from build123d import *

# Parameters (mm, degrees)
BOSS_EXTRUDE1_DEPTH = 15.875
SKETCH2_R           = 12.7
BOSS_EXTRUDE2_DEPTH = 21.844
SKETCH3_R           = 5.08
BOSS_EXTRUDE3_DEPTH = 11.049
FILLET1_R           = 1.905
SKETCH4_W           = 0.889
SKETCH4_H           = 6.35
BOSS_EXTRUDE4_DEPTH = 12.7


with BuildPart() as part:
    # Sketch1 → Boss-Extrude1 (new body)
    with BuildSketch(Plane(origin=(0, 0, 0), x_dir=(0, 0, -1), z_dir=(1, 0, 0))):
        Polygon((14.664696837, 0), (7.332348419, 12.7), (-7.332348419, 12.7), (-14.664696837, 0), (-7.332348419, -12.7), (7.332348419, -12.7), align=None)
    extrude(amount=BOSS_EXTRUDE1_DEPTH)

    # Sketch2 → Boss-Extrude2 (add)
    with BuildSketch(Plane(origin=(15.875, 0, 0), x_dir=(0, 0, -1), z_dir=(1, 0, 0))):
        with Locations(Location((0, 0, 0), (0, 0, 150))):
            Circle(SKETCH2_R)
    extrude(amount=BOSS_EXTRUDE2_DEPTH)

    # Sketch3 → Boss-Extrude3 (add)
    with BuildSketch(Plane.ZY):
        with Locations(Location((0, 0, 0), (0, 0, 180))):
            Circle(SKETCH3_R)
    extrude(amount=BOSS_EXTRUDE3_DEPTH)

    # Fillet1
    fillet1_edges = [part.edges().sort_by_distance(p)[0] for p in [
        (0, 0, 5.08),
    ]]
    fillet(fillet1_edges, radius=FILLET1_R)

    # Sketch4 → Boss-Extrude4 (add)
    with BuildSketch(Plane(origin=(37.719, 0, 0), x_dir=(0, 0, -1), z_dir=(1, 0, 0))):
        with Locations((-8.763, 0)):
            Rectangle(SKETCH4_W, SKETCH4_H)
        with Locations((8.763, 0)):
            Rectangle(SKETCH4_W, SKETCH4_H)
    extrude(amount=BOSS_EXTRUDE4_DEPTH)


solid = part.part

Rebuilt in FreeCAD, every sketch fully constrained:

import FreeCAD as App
import Part
import Sketcher

V = App.Vector
Q = App.Units.Quantity


def edges_at(feature, points):
    """Names of the edges that pass closest to the given points."""
    edges = feature.Shape.Edges
    near = lambda p: min(range(len(edges)), key=lambda i: edges[i].distToShape(Part.Vertex(*p))[0])
    return sorted({f"Edge{near(p) + 1}" for p in points})


def add_polygon(sketch, points):
    """Adds a closed chain of lines whose ends are joined by coincident constraints."""
    first, n = sketch.GeometryCount, len(points)
    for a, b in zip(points, points[1:] + points[:1]):
        sketch.addGeometry(Part.LineSegment(App.Vector(*a, 0), App.Vector(*b, 0)), False)
    for i in range(n):
        sketch.addConstraint(Sketcher.Constraint("Coincident", first + i, 2, first + (i + 1) % n, 1))

doc = App.newDocument("Part")
body = doc.addObject("PartDesign::Body", "Body")

sketch1 = doc.addObject("Sketcher::SketchObject", "Sketch")
body.addObject(sketch1)
sketch1.AttachmentSupport = (doc.YZ_Plane, [""])
sketch1.MapMode = "FlatFace"
add_polygon(sketch1, [(0, -14.664697), (12.7, -7.332348), (12.7, 7.332348), (0, 14.664697), (-12.7, 7.332348), (-12.7, -7.332348)])
sketch1.addConstraint(Sketcher.Constraint("Vertical", 1))
sketch1.addConstraint(Sketcher.Constraint("Vertical", 4))
sketch1.addConstraint(Sketcher.Constraint("Symmetric", 0, 2, 3, 2, -1, 1))
sketch1.addConstraint(Sketcher.Constraint("Symmetric", 2, 2, 5, 2, -1, 1))
sketch1.addConstraint(Sketcher.Constraint("PointOnObject", 2, 2, -2))
sketch1.addConstraint(Sketcher.Constraint("Parallel", 2, 5))
sketch1.addConstraint(Sketcher.Constraint("Horizontal", 1, 2, 3, 2))
sketch1.addConstraint(Sketcher.Constraint("Angle", 0, Q("30 deg")))
sketch1.addConstraint(Sketcher.Constraint("DistanceX", 3, 2, 1, 2, Q("1 in")))
sketch1.addConstraint(Sketcher.Constraint("DistanceY", 1, 1, 1, 2, 14.664697))
pad1 = doc.addObject("PartDesign::Pad", "Pad")
body.addObject(pad1)
pad1.Profile = sketch1
pad1.Length = Q("0.625 in")

sketch2 = doc.addObject("Sketcher::SketchObject", "Sketch001")
body.addObject(sketch2)
sketch2.AttachmentSupport = (doc.YZ_Plane, [""])
sketch2.MapMode = "FlatFace"
sketch2.AttachmentOffset = App.Placement(V(0, 0, 0.625 * 25.4), App.Rotation())
sketch2.addGeometry(Part.Circle(V(0, 0, 0), V(0, 0, 1), 12.7), False)
sketch2.addConstraint(Sketcher.Constraint("Coincident", 0, 3, -1, 1))
sketch2.addConstraint(Sketcher.Constraint("Diameter", 0, Q("1 in")))
pad2 = doc.addObject("PartDesign::Pad", "Pad001")
body.addObject(pad2)
pad2.Profile = sketch2
pad2.Length = Q("0.86 in")

sketch3 = doc.addObject("Sketcher::SketchObject", "Sketch002")
body.addObject(sketch3)
sketch3.AttachmentSupport = (doc.YZ_Plane, [""])
sketch3.MapMode = "FlatFace"
sketch3.addGeometry(Part.Circle(V(0, 0, 0), V(0, 0, 1), 5.08), False)
sketch3.addConstraint(Sketcher.Constraint("Coincident", 0, 3, -1, 1))
sketch3.addConstraint(Sketcher.Constraint("Diameter", 0, Q("0.4 in")))
pad3 = doc.addObject("PartDesign::Pad", "Pad002")
body.addObject(pad3)
pad3.Profile = sketch3
pad3.Length = Q("0.435 in")
pad3.Reversed = True
doc.recompute()

fillet = doc.addObject("PartDesign::Fillet", "Fillet")
body.addObject(fillet)
fillet.Base = (pad3, edges_at(pad3, [(0, 0, 5.08)]))
fillet.Radius = Q("0.075 in")

sketch4 = doc.addObject("Sketcher::SketchObject", "Sketch003")
body.addObject(sketch4)
sketch4.AttachmentSupport = (doc.YZ_Plane, [""])
sketch4.MapMode = "FlatFace"
sketch4.AttachmentOffset = App.Placement(V(0, 0, 1.485 * 25.4), App.Rotation())
add_polygon(sketch4, [(3.175, 9.2075), (-3.175, 9.2075), (-3.175, 8.3185), (3.175, 8.3185)])
add_polygon(sketch4, [(3.175, -8.3185), (-3.175, -8.3185), (-3.175, -9.2075), (3.175, -9.2075)])
sketch4.addConstraint(Sketcher.Constraint("Horizontal", 0))
sketch4.addConstraint(Sketcher.Constraint("Vertical", 1))
sketch4.addConstraint(Sketcher.Constraint("Horizontal", 2))
sketch4.addConstraint(Sketcher.Constraint("Vertical", 3))
sketch4.addConstraint(Sketcher.Constraint("Horizontal", 4))
sketch4.addConstraint(Sketcher.Constraint("Vertical", 5))
sketch4.addConstraint(Sketcher.Constraint("Horizontal", 6))
sketch4.addConstraint(Sketcher.Constraint("Vertical", 7))
sketch4.addConstraint(Sketcher.Constraint("Symmetric", 2, 2, 4, 2, -1, 1))
sketch4.addConstraint(Sketcher.Constraint("Symmetric", 0, 2, 6, 2, -1, 1))
sketch4.addConstraint(Sketcher.Constraint("Vertical", 1, 2, 4, 2))
sketch4.addConstraint(Sketcher.Constraint("DistanceX", 0, 2, 0, 1, Q("0.25 in")))
sketch4.addConstraint(Sketcher.Constraint("DistanceY", 1, 2, 1, 1, Q("0.035 in")))
sketch4.addConstraint(Sketcher.Constraint("DistanceY", 4, 2, 0, 2, Q("0.69 in")))
pad4 = doc.addObject("PartDesign::Pad", "Pad003")
body.addObject(pad4)
pad4.Profile = sketch4
pad4.Length = Q("0.5 in")

doc.recompute()
